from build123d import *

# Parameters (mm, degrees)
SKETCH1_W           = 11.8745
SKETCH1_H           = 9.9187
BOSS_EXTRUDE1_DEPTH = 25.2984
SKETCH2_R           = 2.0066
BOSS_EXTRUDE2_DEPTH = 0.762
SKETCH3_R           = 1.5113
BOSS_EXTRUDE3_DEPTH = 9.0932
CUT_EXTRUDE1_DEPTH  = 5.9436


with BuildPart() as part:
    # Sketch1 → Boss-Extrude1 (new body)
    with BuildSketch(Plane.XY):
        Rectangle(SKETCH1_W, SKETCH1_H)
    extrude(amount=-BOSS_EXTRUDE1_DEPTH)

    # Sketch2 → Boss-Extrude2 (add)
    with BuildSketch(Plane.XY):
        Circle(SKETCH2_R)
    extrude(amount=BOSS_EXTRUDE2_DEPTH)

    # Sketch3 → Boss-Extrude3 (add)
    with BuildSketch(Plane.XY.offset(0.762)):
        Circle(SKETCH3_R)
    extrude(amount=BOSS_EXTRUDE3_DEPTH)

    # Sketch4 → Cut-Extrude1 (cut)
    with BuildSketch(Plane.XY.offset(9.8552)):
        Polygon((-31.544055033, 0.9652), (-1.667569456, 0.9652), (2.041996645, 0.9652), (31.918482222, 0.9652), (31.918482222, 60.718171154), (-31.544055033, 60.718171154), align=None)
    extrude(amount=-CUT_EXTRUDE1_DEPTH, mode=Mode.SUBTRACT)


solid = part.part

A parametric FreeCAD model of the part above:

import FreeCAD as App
import Part
import Sketcher
Q = App.Units.Quantity


def add_polygon(sketch, points):
    """Adds a closed chain of lines whose ends are joined by coincident constraints."""
    first, n = sketch.GeometryCount, len(points)
    for a, b in zip(points, points[1:] + points[:1]):
        sketch.addGeometry(Part.LineSegment(App.Vector(*a, 0), App.Vector(*b, 0)), False)
    for i in range(n):
        sketch.addConstraint(Sketcher.Constraint("Coincident", first + i, 2, first + (i + 1) % n, 1))

doc = App.newDocument("Part")
body = doc.addObject("PartDesign::Body", "Body")

sketch1 = body.newObject("Sketcher::SketchObject", "Sketch")
sketch1.AttachmentSupport = (doc.getObject("XY_Plane"), [""])
sketch1.MapMode = "FlatFace"
add_polygon(sketch1, [(-6, 5), (-6, -5), (6, -5), (6, 5)])
sketch1.addConstraint([
    Sketcher.Constraint("Vertical", 0),
    Sketcher.Constraint("Horizontal", 1),
    Sketcher.Constraint("Vertical", 2),
    Sketcher.Constraint("Horizontal", 3),
    Sketcher.Constraint("Symmetric", 0, 2, 2, 2, -1, 1),
    Sketcher.Constraint("DistanceX", 1, 1, 1, 2, Q("0.4675 in")),
    Sketcher.Constraint("DistanceY", 0, 2, 0, 1, Q("0.3905 in")),
])
pad1 = body.newObject("PartDesign::Pad", "Pad")
pad1.Profile = sketch1
pad1.Length = Q("0.996 in")
pad1.Reversed = True

sketch2 = body.newObject("Sketcher::SketchObject", "Sketch001")
sketch2.AttachmentSupport = (doc.getObject("XY_Plane"), [""])
sketch2.MapMode = "FlatFace"
sketch2.addGeometry(Part.Circle(App.Vector(0, 0, 0), App.Vector(0, 0, 1), 2), False)
sketch2.addConstraint([
    Sketcher.Constraint("Coincident", 0, 3, -1, 1),
    Sketcher.Constraint("Diameter", 0, Q("0.158 in")),
])
pad2 = body.newObject("PartDesign::Pad", "Pad001")
pad2.Profile = sketch2
pad2.Length = Q("0.03 in")

sketch3 = body.newObject("Sketcher::SketchObject", "Sketch002")
sketch3.AttachmentSupport = (doc.getObject("XY_Plane"), [""])
sketch3.MapMode = "FlatFace"
sketch3.AttachmentOffset = App.Placement(App.Vector(0, 0, 0.03 * 25.4), App.Rotation())
sketch3.addGeometry(Part.Circle(App.Vector(0, 0, 0), App.Vector(0, 0, 1), 1.5), False)
sketch3.addConstraint([
    Sketcher.Constraint("Coincident", 0, 3, -1, 1),
    Sketcher.Constraint("Diameter", 0, Q("0.119 in")),
])
pad3 = body.newObject("PartDesign::Pad", "Pad002")
pad3.Profile = sketch3
pad3.Length = Q("0.358 in")

sketch4 = body.newObject("Sketcher::SketchObject", "Sketch003")
sketch4.AttachmentSupport = (doc.getObject("XY_Plane"), [""])
sketch4.MapMode = "FlatFace"
sketch4.AttachmentOffset = App.Placement(App.Vector(0, 0, 0.388 * 25.4), App.Rotation())
add_polygon(sketch4, [(-32, 1), (32, 1), (32, 61), (-32, 61)])
sketch4.addConstraint([
    Sketcher.Constraint("Horizontal", 0),
    Sketcher.Constraint("Vertical", 1),
    Sketcher.Constraint("Horizontal", 2),
    Sketcher.Constraint("Vertical", 3),
    Sketcher.Constraint("DistanceY", -1, 1, 0, 2, Q("0.038 in")),
    Sketcher.Constraint("DistanceY", 1, 1, 1, 2, Q("59.752971 mm")),
    Sketcher.Constraint("DistanceX", 0, 1, 0, 2, Q("63.462537 mm")),
    Sketcher.Constraint("DistanceX", -1, 1, 0, 2, Q("31.918482 mm")),
])
pocket1 = body.newObject("PartDesign::Pocket", "Pocket")
pocket1.Profile = sketch4
pocket1.Length = Q("0.234 in")

doc.recompute()
